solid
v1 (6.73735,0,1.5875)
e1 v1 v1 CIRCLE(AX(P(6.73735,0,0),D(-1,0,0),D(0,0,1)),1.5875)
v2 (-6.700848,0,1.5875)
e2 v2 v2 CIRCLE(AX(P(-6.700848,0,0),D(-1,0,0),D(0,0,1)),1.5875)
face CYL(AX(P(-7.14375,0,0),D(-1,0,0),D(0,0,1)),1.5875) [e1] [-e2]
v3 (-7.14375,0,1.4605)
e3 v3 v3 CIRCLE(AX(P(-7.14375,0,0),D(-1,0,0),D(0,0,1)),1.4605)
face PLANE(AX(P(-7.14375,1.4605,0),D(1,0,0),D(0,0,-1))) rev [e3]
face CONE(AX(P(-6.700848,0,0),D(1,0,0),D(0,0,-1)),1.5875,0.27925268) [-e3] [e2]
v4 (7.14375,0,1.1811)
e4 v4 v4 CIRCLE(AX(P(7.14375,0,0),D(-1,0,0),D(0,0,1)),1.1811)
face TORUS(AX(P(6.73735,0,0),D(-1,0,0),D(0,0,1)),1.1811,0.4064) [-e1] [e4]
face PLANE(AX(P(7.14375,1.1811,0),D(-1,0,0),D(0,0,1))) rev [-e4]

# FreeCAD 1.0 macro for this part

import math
import FreeCAD as App
import Part
import Sketcher

V = App.Vector
Q = App.Units.Quantity

doc = App.newDocument("Part")
params = doc.addObject("Spreadsheet::Sheet", "Params")
for row, (alias, value) in enumerate([
    ("sketch1_radius", "0.016 in"),
    ("sketch1_width", "0.5625 in"),
    ("revolution_angle", "360 deg"),
], start=1):
    params.set(f"A{row}", alias)
    params.set(f"B{row}", "=" + value)
    params.setAlias(f"B{row}", alias)

body = doc.addObject("PartDesign::Body", "Body")

# Sketch on XY plane
sketch1 = body.newObject("Sketcher::SketchObject", "Sketch")
sketch1.AttachmentSupport = (doc.getObject("XY_Plane"), [""])
sketch1.MapMode = "FlatFace"
sketch1.addGeometry(Part.LineSegment(V(7.14, 0, 0), V(7.14, 1.18, 0)), False)
sketch1.addGeometry(Part.ArcOfCircle(Part.Circle(V(6.74, 1.18, 0), V(0, 0, 1), 0.41), math.radians(0), math.radians(90)), False)
sketch1.addGeometry(Part.LineSegment(V(6.74, 1.59, 0), V(-6.7, 1.59, 0)), False)
sketch1.addGeometry(Part.LineSegment(V(-6.7, 1.59, 0), V(-7.14, 1.46, 0)), False)
sketch1.addGeometry(Part.LineSegment(V(-7.14, 1.46, 0), V(-7.14, 0, 0)), False)
sketch1.addGeometry(Part.LineSegment(V(-7.14, 0, 0), V(7.14, 0, 0)), False)
sketch1.addConstraint(Sketcher.Constraint("Tangent", 0, 2, 1, 1))
sketch1.addConstraint(Sketcher.Constraint("Tangent", 1, 2, 2, 1))
sketch1.addConstraint(Sketcher.Constraint("Coincident", 2, 2, 3, 1))
sketch1.addConstraint(Sketcher.Constraint("Coincident", 3, 2, 4, 1))
sketch1.addConstraint(Sketcher.Constraint("Coincident", 4, 2, 5, 1))
sketch1.addConstraint(Sketcher.Constraint("Coincident", 5, 2, 0, 1))
sketch1.addConstraint(Sketcher.Constraint("Vertical", 0))
sketch1.addConstraint(Sketcher.Constraint("Horizontal", 2))
sketch1.addConstraint(Sketcher.Constraint("Vertical", 4))
sketch1.addConstraint(Sketcher.Constraint("Horizontal", 5))
sketch1.addConstraint(Sketcher.Constraint("Symmetric", 4, 2, 5, 2, -1, 1))
sketch1.addConstraint(Sketcher.Constraint("Angle", 3, Q("-164 deg")))
sketch1.addConstraint(Sketcher.Constraint("Radius", 1, Q("0.016 in")))
sketch1.addConstraint(Sketcher.Constraint("DistanceX", 5, 1, 5, 2, Q("0.5625 in")))
sketch1.addConstraint(Sketcher.Constraint("DistanceY", 0, 1, 0, 2, Q("0.0465 in")))
sketch1.addConstraint(Sketcher.Constraint("DistanceY", 4, 2, 4, 1, Q("0.0575 in")))
sketch1.setExpression("Constraints[12]", "Params.sketch1_radius")
sketch1.setExpression("Constraints[13]", "Params.sketch1_width")
revolution = body.newObject("PartDesign::Revolution", "Revolution")
revolution.Profile = sketch1
revolution.ReferenceAxis = (sketch1, ["H_Axis"])
revolution.setExpression("Angle", "Params.revolution_angle")

doc.recompute()
